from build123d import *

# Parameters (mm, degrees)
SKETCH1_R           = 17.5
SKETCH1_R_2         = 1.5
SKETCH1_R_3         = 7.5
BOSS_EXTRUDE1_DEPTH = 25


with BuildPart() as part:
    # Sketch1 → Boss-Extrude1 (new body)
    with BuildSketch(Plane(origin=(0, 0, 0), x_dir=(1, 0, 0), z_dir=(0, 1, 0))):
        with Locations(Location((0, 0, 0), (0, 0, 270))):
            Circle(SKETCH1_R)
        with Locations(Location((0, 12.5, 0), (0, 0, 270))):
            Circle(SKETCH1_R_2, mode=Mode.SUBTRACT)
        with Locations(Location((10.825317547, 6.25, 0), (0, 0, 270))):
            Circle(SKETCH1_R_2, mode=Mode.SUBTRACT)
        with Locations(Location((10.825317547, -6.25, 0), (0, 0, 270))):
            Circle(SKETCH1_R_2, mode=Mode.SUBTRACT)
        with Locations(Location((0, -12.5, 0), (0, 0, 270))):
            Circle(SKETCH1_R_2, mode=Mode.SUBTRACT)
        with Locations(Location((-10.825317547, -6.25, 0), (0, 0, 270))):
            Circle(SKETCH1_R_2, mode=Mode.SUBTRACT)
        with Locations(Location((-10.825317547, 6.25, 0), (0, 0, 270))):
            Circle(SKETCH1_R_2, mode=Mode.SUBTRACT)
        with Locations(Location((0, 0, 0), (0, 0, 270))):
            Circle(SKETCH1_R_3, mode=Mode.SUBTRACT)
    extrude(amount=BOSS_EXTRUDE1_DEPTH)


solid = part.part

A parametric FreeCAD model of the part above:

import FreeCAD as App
import Part
import Sketcher
from FreeCAD import Vector

doc = App.newDocument("Part")
params = doc.addObject("Spreadsheet::Sheet", "Params")
for row, (alias, value) in enumerate([
    ("sketch1_diameter", "35 mm"),
    ("sketch1_diameter2", "3 mm"),
    ("sketch1_diameter3", "15 mm"),
    ("pad1_length", "25 mm"),
], start=1):
    params.set(f"A{row}", alias)
    params.set(f"B{row}", "=" + value)
    params.setAlias(f"B{row}", alias)

body = doc.addObject("PartDesign::Body", "Body")

# Sketch on XZ plane
sketch1 = body.newObject("Sketcher::SketchObject", "Sketch")
sketch1.AttachmentSupport = (doc.getObject("XZ_Plane"), [""])
sketch1.MapMode = "FlatFace"
sketch1.addGeometry([
    Part.Circle(Vector(0, 0, 0), Vector(0, 0, 1), 17.5),  # 0
    Part.Circle(Vector(-10.8, -6.2, 0), Vector(0, 0, 1), 1.5),  # 1
    Part.Circle(Vector(0, -12.5, 0), Vector(0, 0, 1), 1.5),  # 2
    Part.Circle(Vector(-10.8, 6.2, 0), Vector(0, 0, 1), 1.5),  # 3
    Part.Circle(Vector(0, 0, 0), Vector(0, 0, 1), 7.5),  # 4
    Part.Circle(Vector(10.8, -6.2, 0), Vector(0, 0, 1), 1.5),  # 5
    Part.Circle(Vector(0, 12.5, 0), Vector(0, 0, 1), 1.5),  # 6
    Part.Circle(Vector(10.8, 6.2, 0), Vector(0, 0, 1), 1.5),  # 7
], False)
sketch1.addConstraint([
    Sketcher.Constraint("Coincident", 0, 3, -1, 1),
    Sketcher.Constraint("Coincident", 4, 3, -1, 1),
    Sketcher.Constraint("Equal", 1, 2),
    Sketcher.Constraint("Equal", 2, 3),
    Sketcher.Constraint("Equal", 3, 5),
    Sketcher.Constraint("Equal", 5, 6),
    Sketcher.Constraint("Equal", 6, 7),
    Sketcher.Constraint("Symmetric", 3, 3, 5, 3, -1, 1),
    Sketcher.Constraint("Symmetric", 2, 3, 6, 3, -1, 1),
    Sketcher.Constraint("Symmetric", 1, 3, 7, 3, -1, 1),
    Sketcher.Constraint("Symmetric", 1, 3, 5, 3, -2),
    Sketcher.Constraint("PointOnObject", 2, 3, -2),
    Sketcher.Constraint("Diameter", 0, 35.0),
    Sketcher.Constraint("Diameter", 1, 3.0),
    Sketcher.Constraint("Diameter", 4, 15.0),
    Sketcher.Constraint("DistanceY", 2, 3, -1, 1, 12.5),
    Sketcher.Constraint("DistanceY", 1, 3, 3, 3, 12.5),
    Sketcher.Constraint("DistanceX", 1, 3, -1, 1, 10.825318),
])
sketch1.setExpression("Constraints[12]", "Params.sketch1_diameter")
sketch1.setExpression("Constraints[13]", "Params.sketch1_diameter2")
sketch1.setExpression("Constraints[14]", "Params.sketch1_diameter3")
pad1 = body.newObject("PartDesign::Pad", "Pad")
pad1.Profile = sketch1
pad1.setExpression("Length", "Params.pad1_length")
pad1.Reversed = True

doc.recompute()
